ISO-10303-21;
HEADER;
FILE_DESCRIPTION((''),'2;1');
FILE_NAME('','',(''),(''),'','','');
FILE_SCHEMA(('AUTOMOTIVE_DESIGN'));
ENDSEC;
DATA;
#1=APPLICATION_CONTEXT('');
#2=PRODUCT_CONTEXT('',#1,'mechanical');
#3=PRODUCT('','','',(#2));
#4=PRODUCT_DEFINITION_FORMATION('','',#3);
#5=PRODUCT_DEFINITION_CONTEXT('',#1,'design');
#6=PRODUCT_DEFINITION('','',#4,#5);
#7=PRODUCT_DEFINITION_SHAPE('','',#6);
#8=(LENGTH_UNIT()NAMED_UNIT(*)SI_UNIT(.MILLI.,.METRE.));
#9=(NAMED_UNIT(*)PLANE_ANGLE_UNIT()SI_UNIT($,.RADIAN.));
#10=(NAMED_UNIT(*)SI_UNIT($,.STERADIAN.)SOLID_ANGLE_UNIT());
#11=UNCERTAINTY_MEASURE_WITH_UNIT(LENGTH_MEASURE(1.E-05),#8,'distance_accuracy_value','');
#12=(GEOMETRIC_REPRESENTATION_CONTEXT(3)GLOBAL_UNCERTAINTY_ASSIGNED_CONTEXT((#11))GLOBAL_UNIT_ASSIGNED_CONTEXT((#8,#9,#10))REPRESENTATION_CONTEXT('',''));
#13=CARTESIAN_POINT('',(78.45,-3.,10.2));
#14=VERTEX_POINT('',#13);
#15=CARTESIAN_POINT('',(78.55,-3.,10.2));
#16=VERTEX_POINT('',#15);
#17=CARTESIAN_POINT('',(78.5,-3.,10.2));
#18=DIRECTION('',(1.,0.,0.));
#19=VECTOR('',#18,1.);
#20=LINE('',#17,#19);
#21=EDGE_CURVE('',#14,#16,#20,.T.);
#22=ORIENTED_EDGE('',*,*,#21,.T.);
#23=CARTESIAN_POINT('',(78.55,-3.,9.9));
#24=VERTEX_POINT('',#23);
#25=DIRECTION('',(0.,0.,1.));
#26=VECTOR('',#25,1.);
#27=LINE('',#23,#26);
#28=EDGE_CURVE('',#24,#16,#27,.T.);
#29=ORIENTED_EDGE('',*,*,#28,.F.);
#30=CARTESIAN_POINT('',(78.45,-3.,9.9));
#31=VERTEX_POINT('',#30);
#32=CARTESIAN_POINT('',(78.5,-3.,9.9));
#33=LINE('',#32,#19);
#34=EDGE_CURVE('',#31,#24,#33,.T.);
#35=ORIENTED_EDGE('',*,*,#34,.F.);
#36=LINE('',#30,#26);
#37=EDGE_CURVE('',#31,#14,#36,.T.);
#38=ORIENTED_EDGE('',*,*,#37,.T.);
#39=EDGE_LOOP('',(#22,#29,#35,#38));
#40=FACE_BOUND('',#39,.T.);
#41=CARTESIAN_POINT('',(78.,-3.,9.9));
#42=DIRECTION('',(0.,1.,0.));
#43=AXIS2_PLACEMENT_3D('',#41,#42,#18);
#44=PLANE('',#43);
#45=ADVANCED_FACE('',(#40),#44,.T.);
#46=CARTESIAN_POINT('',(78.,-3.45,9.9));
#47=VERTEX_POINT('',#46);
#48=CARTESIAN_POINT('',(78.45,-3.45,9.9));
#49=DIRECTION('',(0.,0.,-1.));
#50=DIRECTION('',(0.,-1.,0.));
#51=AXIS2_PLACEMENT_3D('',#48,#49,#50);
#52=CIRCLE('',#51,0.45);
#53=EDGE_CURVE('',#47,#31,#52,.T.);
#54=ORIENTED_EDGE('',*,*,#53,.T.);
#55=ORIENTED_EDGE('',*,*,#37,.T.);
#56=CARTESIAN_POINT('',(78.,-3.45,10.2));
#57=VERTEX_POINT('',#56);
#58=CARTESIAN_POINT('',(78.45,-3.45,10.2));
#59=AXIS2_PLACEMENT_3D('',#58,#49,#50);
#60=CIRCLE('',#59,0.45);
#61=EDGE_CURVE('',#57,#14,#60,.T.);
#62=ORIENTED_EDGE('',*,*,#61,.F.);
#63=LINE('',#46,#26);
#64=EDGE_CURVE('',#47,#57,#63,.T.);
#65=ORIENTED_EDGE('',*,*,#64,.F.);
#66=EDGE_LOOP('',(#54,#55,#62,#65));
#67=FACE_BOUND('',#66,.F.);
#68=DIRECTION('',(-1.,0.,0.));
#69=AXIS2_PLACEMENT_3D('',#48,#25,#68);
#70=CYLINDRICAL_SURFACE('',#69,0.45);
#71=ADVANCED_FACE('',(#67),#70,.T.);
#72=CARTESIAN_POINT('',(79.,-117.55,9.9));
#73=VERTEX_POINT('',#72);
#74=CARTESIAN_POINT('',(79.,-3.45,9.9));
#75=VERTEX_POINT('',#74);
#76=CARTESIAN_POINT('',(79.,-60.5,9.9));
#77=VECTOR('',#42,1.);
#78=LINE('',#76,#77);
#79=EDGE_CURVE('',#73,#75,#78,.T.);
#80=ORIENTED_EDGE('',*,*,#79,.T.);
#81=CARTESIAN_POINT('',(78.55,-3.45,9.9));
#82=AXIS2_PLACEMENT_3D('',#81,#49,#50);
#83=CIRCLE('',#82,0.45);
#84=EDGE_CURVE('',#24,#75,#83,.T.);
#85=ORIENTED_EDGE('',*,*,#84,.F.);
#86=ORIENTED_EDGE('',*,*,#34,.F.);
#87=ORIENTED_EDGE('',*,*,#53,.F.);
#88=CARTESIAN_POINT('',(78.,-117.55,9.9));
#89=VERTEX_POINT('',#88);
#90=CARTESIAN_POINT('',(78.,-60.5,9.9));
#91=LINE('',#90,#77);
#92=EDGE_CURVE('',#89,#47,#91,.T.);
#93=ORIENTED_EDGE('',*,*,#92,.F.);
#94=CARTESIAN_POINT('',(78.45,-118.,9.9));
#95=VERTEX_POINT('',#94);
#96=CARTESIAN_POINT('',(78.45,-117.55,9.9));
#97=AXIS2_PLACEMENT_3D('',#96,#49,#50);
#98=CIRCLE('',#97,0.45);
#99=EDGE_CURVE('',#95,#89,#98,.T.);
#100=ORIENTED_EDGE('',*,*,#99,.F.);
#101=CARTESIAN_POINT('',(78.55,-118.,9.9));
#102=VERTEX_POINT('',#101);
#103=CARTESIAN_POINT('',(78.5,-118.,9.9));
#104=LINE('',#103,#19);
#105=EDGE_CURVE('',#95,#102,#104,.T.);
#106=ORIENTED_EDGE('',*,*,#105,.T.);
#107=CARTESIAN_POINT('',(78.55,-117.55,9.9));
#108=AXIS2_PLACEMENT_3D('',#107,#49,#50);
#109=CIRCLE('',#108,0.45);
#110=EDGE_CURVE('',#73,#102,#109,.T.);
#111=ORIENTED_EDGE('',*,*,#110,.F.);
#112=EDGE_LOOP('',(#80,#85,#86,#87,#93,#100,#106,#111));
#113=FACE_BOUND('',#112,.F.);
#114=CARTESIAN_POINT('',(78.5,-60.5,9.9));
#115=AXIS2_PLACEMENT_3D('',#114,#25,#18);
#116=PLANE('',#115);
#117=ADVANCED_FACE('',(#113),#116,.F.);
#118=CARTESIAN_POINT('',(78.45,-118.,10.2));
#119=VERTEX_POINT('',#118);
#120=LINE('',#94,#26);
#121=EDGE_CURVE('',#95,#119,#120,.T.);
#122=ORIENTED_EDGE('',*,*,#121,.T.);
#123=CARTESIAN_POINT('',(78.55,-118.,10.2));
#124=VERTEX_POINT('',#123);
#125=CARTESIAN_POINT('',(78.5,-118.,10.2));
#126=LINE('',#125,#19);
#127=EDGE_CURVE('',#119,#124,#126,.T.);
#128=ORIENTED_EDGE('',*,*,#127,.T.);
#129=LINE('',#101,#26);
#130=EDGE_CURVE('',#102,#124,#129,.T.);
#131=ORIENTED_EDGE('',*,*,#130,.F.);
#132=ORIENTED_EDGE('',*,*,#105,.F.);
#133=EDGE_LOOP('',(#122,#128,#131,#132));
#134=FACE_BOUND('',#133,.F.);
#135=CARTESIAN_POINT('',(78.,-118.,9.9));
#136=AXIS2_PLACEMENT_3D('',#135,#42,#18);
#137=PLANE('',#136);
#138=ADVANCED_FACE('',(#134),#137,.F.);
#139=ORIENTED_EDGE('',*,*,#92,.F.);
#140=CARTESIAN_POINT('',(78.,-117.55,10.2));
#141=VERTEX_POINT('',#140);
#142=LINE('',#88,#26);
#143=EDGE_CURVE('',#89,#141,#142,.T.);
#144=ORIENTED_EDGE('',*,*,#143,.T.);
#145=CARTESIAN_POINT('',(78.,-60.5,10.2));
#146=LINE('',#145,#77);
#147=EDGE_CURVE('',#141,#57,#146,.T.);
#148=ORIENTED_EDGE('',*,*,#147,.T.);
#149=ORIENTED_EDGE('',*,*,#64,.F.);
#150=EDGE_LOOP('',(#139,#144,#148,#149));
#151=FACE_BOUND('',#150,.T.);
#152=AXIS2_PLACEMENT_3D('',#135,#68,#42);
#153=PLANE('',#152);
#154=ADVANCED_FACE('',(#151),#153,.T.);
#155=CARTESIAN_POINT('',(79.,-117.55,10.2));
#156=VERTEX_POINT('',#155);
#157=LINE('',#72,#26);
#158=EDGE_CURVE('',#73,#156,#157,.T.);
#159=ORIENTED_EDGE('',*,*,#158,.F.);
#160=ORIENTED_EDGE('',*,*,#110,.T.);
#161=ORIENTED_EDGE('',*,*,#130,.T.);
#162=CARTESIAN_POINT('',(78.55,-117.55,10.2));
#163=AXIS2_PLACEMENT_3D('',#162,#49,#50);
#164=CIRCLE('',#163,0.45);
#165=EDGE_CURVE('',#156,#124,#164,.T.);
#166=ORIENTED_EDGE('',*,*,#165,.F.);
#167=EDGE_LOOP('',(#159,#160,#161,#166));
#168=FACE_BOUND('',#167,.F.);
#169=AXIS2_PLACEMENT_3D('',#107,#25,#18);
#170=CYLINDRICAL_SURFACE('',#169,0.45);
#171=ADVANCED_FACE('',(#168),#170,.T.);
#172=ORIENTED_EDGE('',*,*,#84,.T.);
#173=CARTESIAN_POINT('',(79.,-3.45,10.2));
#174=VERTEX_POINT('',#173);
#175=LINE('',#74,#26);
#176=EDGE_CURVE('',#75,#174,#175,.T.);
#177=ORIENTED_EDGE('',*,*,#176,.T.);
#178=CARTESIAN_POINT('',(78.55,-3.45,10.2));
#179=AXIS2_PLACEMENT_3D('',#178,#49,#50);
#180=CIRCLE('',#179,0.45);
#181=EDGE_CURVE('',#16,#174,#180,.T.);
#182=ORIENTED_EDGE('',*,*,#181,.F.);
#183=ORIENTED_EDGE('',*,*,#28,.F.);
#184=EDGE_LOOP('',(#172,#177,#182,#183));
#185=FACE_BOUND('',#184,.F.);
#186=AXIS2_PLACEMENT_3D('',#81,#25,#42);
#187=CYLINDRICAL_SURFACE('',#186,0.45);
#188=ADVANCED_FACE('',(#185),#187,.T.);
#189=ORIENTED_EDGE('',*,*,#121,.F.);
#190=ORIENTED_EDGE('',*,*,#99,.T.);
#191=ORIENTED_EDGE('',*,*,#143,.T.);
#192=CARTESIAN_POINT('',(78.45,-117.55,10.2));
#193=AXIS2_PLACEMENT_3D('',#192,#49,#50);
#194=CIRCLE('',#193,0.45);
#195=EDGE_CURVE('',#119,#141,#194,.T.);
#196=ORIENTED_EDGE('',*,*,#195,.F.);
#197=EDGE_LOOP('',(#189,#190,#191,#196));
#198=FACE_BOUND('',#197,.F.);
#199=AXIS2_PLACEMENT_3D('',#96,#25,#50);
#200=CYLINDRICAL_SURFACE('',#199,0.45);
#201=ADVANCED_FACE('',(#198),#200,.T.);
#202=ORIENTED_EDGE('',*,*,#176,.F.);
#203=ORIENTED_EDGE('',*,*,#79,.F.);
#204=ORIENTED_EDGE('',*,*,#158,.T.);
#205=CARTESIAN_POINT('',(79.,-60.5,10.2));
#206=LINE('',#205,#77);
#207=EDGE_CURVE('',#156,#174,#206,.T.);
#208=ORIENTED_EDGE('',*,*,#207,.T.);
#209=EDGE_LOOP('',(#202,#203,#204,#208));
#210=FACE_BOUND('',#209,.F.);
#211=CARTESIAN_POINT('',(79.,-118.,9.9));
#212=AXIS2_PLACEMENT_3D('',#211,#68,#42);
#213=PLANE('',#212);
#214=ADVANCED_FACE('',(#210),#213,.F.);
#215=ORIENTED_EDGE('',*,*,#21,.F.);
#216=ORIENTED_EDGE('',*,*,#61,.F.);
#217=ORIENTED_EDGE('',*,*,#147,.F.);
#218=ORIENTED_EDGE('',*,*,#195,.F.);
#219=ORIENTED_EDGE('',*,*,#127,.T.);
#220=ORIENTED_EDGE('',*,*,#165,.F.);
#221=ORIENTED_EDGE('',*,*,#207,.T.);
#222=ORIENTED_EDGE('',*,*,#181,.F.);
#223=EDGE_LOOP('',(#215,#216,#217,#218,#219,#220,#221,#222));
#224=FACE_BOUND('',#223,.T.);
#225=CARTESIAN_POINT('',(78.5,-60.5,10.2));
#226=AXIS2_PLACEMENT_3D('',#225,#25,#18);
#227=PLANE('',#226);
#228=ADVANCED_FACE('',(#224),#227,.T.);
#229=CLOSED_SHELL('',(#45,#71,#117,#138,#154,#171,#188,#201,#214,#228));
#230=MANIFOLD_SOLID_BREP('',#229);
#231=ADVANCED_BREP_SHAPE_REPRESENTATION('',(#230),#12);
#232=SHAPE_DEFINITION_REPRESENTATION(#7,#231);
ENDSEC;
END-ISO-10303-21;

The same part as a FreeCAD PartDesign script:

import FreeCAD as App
import Part
import Sketcher
Q = App.Units.Quantity


def edges_at(feature, points):
    """Names of the edges that pass closest to the given points."""
    edges = feature.Shape.Edges
    near = lambda p: min(range(len(edges)), key=lambda i: edges[i].distToShape(Part.Vertex(*p))[0])
    return sorted({f"Edge{near(p) + 1}" for p in points})

doc = App.newDocument("Part")
params = doc.addObject("Spreadsheet::Sheet", "Params")
for row, (alias, value) in enumerate([
    ("sketch1_width", "1 mm"),
    ("sketch1_height", "115 mm"),
    ("pad1_length", "0.3 mm"),
    ("fillet_radius", "0.45 mm"),
    ("fillet2_radius", "0.45 mm"),
    ("fillet3_radius", "0.45 mm"),
    ("fillet4_radius", "0.45 mm"),
], start=1):
    params.set(f"A{row}", alias)
    params.set(f"B{row}", "=" + value)
    params.setAlias(f"B{row}", alias)

body = doc.addObject("PartDesign::Body", "Body")

# Sketch on XY plane
sketch1 = body.newObject("Sketcher::SketchObject", "Sketch")
sketch1.AttachmentSupport = (doc.getObject("XY_Plane"), [""])
sketch1.MapMode = "FlatFace"
sketch1.AttachmentOffset = App.Placement(App.Vector(0, 0, 9.9), App.Rotation())
sketch1.addGeometry(Part.LineSegment(App.Vector(78, -3, 0), App.Vector(78, -118, 0)), False)
sketch1.addGeometry(Part.LineSegment(App.Vector(78, -118, 0), App.Vector(79, -118, 0)), False)
sketch1.addGeometry(Part.LineSegment(App.Vector(79, -118, 0), App.Vector(79, -3, 0)), False)
sketch1.addGeometry(Part.LineSegment(App.Vector(79, -3, 0), App.Vector(78, -3, 0)), False)
sketch1.addConstraint(Sketcher.Constraint("Coincident", 0, 2, 1, 1))
sketch1.addConstraint(Sketcher.Constraint("Coincident", 1, 2, 2, 1))
sketch1.addConstraint(Sketcher.Constraint("Coincident", 2, 2, 3, 1))
sketch1.addConstraint(Sketcher.Constraint("Coincident", 3, 2, 0, 1))
sketch1.addConstraint(Sketcher.Constraint("Vertical", 0))
sketch1.addConstraint(Sketcher.Constraint("Horizontal", 1))
sketch1.addConstraint(Sketcher.Constraint("Vertical", 2))
sketch1.addConstraint(Sketcher.Constraint("Horizontal", 3))
sketch1.addConstraint(Sketcher.Constraint("DistanceX", 1, 1, 1, 2, Q("1 mm")))
sketch1.addConstraint(Sketcher.Constraint("DistanceY", 0, 2, 0, 1, Q("115 mm")))
sketch1.addConstraint(Sketcher.Constraint("DistanceX", -1, 1, 0, 2, Q("78 mm")))
sketch1.addConstraint(Sketcher.Constraint("DistanceY", 0, 2, -1, 1, Q("118 mm")))
sketch1.setExpression("Constraints[8]", "Params.sketch1_width")
sketch1.setExpression("Constraints[9]", "Params.sketch1_height")
pad1 = body.newObject("PartDesign::Pad", "Pad")
pad1.Profile = sketch1
pad1.setExpression("Length", "Params.pad1_length")
doc.recompute()

fillet = body.newObject("PartDesign::Fillet", "Fillet")
fillet.Base = (pad1, edges_at(pad1, [(78, -3, 10.05)]))
fillet.setExpression("Radius", "Params.fillet_radius")
doc.recompute()

fillet2 = body.newObject("PartDesign::Fillet", "Fillet001")
fillet2.Base = (fillet, edges_at(fillet, [(79, -3, 10.05)]))
fillet2.setExpression("Radius", "Params.fillet2_radius")
doc.recompute()

fillet3 = body.newObject("PartDesign::Fillet", "Fillet002")
fillet3.Base = (fillet2, edges_at(fillet2, [(79, -118, 10.05)]))
fillet3.setExpression("Radius", "Params.fillet3_radius")
doc.recompute()

fillet4 = body.newObject("PartDesign::Fillet", "Fillet003")
fillet4.Base = (fillet3, edges_at(fillet3, [(78, -118, 10.05)]))
fillet4.setExpression("Radius", "Params.fillet4_radius")

doc.recompute()
